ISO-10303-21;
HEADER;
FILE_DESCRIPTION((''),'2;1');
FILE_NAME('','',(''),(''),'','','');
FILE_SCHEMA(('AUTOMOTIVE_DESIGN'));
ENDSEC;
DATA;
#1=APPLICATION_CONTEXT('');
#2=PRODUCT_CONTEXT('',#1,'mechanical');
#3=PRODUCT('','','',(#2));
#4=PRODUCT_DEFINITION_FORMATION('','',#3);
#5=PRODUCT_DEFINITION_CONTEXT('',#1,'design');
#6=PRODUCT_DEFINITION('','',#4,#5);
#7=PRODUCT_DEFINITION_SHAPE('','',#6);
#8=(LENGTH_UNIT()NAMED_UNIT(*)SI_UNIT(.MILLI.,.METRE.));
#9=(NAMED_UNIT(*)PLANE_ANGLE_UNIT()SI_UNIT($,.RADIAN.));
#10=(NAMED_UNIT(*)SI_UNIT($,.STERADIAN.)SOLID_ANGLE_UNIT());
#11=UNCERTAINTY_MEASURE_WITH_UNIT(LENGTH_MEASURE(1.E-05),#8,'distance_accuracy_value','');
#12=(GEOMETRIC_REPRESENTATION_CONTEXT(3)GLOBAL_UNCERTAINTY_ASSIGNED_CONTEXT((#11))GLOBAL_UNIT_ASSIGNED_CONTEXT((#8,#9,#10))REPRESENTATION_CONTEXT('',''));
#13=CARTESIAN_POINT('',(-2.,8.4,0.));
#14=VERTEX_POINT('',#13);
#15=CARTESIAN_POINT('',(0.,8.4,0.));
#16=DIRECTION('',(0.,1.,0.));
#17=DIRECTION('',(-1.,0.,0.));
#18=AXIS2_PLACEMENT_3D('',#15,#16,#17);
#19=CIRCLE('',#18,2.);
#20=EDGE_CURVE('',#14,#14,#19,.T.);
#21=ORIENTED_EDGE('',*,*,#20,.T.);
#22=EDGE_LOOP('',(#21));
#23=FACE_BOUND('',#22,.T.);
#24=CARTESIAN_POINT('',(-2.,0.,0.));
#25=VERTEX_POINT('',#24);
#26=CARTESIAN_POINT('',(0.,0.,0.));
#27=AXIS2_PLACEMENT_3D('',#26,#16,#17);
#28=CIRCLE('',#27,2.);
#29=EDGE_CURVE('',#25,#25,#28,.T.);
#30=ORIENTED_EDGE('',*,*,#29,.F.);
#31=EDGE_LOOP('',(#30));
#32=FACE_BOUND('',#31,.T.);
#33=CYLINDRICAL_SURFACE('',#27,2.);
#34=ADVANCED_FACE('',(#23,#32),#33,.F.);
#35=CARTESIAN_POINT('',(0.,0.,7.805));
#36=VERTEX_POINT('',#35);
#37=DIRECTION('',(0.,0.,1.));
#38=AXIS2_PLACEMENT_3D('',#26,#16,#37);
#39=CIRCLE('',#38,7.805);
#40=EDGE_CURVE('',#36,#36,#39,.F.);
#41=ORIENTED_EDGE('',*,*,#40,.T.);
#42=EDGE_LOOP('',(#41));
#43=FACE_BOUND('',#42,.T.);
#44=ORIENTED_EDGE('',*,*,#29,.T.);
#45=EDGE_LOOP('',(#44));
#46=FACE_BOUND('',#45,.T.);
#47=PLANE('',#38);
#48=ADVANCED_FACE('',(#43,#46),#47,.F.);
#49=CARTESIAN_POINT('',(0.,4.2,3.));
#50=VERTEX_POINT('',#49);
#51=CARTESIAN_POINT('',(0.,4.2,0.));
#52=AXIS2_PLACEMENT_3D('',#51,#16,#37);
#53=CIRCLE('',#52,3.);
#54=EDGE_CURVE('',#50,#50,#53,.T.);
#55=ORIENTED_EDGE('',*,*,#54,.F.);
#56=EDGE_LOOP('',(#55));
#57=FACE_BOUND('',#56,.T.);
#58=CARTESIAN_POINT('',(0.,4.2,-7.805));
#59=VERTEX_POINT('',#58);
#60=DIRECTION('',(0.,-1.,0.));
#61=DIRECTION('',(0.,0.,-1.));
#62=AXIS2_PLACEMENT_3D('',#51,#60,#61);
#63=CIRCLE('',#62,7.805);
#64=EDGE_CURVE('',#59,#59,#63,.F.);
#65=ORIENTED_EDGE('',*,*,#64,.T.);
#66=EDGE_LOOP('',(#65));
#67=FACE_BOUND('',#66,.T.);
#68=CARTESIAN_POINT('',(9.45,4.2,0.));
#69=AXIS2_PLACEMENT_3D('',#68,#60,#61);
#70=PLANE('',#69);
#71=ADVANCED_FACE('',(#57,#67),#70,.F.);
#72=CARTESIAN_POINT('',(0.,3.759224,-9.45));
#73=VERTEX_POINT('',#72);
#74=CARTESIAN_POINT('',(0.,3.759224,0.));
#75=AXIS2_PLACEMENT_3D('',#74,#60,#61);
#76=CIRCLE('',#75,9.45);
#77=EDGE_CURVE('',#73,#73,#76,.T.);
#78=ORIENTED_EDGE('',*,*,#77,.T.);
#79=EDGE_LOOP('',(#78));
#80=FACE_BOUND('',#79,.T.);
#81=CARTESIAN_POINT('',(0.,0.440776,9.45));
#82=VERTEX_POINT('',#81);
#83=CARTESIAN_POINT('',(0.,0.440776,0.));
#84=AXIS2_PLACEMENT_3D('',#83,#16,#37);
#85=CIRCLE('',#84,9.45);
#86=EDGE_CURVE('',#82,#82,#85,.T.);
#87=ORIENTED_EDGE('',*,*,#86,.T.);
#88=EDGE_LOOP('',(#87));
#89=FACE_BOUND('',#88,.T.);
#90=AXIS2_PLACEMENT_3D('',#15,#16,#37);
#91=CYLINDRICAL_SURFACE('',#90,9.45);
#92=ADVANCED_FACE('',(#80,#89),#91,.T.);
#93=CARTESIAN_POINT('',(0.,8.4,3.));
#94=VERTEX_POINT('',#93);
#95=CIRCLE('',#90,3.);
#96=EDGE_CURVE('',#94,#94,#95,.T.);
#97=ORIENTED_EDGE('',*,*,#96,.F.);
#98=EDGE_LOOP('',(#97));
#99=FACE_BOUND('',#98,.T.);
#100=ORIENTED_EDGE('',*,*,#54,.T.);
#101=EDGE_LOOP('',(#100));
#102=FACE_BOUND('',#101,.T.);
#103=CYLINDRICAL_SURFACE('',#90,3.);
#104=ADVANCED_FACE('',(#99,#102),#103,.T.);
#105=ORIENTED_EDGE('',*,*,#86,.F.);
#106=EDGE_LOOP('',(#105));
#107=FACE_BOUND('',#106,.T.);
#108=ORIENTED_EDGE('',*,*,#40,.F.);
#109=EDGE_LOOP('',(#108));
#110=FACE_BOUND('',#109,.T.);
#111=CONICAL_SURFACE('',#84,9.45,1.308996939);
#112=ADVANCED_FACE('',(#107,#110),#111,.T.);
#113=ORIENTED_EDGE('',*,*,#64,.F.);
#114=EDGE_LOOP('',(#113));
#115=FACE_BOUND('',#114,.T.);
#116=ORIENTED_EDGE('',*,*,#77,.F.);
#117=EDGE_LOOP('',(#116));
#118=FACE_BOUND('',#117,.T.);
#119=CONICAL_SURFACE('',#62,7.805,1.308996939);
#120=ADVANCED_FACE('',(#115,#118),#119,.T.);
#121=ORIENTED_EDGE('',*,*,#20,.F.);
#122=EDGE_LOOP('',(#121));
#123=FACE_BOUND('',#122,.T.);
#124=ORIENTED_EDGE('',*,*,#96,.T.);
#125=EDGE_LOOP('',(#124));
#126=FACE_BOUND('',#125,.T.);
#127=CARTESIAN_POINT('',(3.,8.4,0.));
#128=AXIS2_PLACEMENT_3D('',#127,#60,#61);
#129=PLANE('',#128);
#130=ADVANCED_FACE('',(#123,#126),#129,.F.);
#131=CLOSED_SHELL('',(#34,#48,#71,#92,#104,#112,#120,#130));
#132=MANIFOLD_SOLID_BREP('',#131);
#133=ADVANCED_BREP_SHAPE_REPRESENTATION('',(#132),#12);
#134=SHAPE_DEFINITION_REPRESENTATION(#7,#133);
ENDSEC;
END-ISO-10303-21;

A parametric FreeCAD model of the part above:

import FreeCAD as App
import Part
import Sketcher


def edges_at(feature, points):
    """Names of the edges that pass closest to the given points."""
    edges = feature.Shape.Edges
    near = lambda p: min(range(len(edges)), key=lambda i: edges[i].distToShape(Part.Vertex(*p))[0])
    return sorted({f"Edge{near(p) + 1}" for p in points})

doc = App.newDocument("Part")
params = doc.addObject("Spreadsheet::Sheet", "Params")
for row, (alias, value) in enumerate([
    ("sketch1_width", "3 mm"),
    ("sketch1_height", "4.2 mm"),
    ("sketch1_width2", "9.45 mm"),
    ("revolution_angle", "360 deg"),
    ("chamfer_size", "1.645 mm"),
    ("chamfer_size2", "0.440776 mm"),
    ("chamfer2_size", "1.645 mm"),
    ("chamfer2_size2", "0.440776 mm"),
    ("sketch2_diameter", "4 mm"),
], start=1):
    params.set(f"A{row}", alias)
    params.set(f"B{row}", "=" + value)
    params.setAlias(f"B{row}", alias)

body = doc.addObject("PartDesign::Body", "Body")

# Sketch on XY plane
sketch1 = body.newObject("Sketcher::SketchObject", "Sketch")
sketch1.AttachmentSupport = (doc.getObject("XY_Plane"), [""])
sketch1.MapMode = "FlatFace"
sketch1.addGeometry([
    Part.LineSegment(App.Vector(0, 0, 0), App.Vector(9.4, 0, 0)),  # 0
    Part.LineSegment(App.Vector(9.4, 0, 0), App.Vector(9.4, 4.2, 0)),  # 1
    Part.LineSegment(App.Vector(9.4, 4.2, 0), App.Vector(3, 4.2, 0)),  # 2
    Part.LineSegment(App.Vector(3, 4.2, 0), App.Vector(3, 8.4, 0)),  # 3
    Part.LineSegment(App.Vector(3, 8.4, 0), App.Vector(0, 8.4, 0)),  # 4
    Part.LineSegment(App.Vector(0, 8.4, 0), App.Vector(0, 0, 0)),  # 5
], False)
sketch1.addConstraint([
    Sketcher.Constraint("Coincident", 0, 2, 1, 1),
    Sketcher.Constraint("Coincident", 1, 2, 2, 1),
    Sketcher.Constraint("Coincident", 2, 2, 3, 1),
    Sketcher.Constraint("Coincident", 3, 2, 4, 1),
    Sketcher.Constraint("Coincident", 4, 2, 5, 1),
    Sketcher.Constraint("Coincident", 5, 2, 0, 1),
    Sketcher.Constraint("Horizontal", 0),
    Sketcher.Constraint("Vertical", 1),
    Sketcher.Constraint("Horizontal", 2),
    Sketcher.Constraint("Vertical", 3),
    Sketcher.Constraint("Horizontal", 4),
    Sketcher.Constraint("Vertical", 5),
    Sketcher.Constraint("Coincident", 5, 2, -1, 1),
    Sketcher.Constraint("Equal", 1, 3),
    Sketcher.Constraint("DistanceX", 4, 2, 4, 1, 3.0),
    Sketcher.Constraint("DistanceY", 1, 1, 1, 2, 4.2),
    Sketcher.Constraint("DistanceX", 0, 1, 0, 2, 9.45),
])
sketch1.setExpression("Constraints[14]", "Params.sketch1_width")
sketch1.setExpression("Constraints[15]", "Params.sketch1_height")
sketch1.setExpression("Constraints[16]", "Params.sketch1_width2")
revolution = body.newObject("PartDesign::Revolution", "Revolution")
revolution.Profile = sketch1
revolution.ReferenceAxis = (sketch1, ["V_Axis"])
revolution.setExpression("Angle", "Params.revolution_angle")
doc.recompute()

chamfer = body.newObject("PartDesign::Chamfer", "Chamfer")
chamfer.Base = (revolution, edges_at(revolution, [(-9.45, 4.2, 0)]))
chamfer.ChamferType = "Two distances"
chamfer.setExpression("Size", "Params.chamfer_size")
chamfer.setExpression("Size2", "Params.chamfer_size2")
chamfer.FlipDirection = True
doc.recompute()

chamfer2 = body.newObject("PartDesign::Chamfer", "Chamfer001")
chamfer2.Base = (chamfer, edges_at(chamfer, [(-9.45, 0, 0)]))
chamfer2.ChamferType = "Two distances"
chamfer2.setExpression("Size", "Params.chamfer2_size")
chamfer2.setExpression("Size2", "Params.chamfer2_size2")
chamfer2.FlipDirection = True

# Sketch on XZ plane
sketch2 = body.newObject("Sketcher::SketchObject", "Sketch001")
sketch2.AttachmentSupport = (doc.getObject("XZ_Plane"), [""])
sketch2.MapMode = "FlatFace"
sketch2.AttachmentOffset = App.Placement(App.Vector(0, 0, -8.4), App.Rotation())
sketch2.addGeometry(Part.Circle(App.Vector(0, 0, 0), App.Vector(0, 0, 1), 2), False)
sketch2.addConstraint([
    Sketcher.Constraint("Coincident", 0, 3, -1, 1),
    Sketcher.Constraint("Diameter", 0, 4.0),
])
sketch2.setExpression("Constraints[1]", "Params.sketch2_diameter")
pocket1 = body.newObject("PartDesign::Pocket", "Pocket")
pocket1.Profile = sketch2
pocket1.Type = "ThroughAll"
pocket1.Midplane = True

doc.recompute()
